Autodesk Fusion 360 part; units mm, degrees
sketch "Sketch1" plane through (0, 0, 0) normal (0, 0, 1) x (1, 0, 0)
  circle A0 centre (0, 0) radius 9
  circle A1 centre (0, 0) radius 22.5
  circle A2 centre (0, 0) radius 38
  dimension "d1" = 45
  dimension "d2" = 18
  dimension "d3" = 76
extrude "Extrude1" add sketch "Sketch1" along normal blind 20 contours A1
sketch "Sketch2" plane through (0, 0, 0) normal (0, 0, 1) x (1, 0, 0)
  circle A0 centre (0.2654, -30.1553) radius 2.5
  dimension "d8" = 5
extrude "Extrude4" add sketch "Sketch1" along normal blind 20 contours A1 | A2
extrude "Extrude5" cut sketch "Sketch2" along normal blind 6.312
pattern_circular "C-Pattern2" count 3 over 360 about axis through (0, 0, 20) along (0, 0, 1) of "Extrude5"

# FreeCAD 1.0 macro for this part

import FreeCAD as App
import Part
import Sketcher
from FreeCAD import Vector
Q = App.Units.Quantity

doc = App.newDocument("Part")
body = doc.addObject("PartDesign::Body", "Body")

# Sketch on XY plane
sketch1 = body.newObject("Sketcher::SketchObject", "Sketch")
sketch1.AttachmentSupport = (doc.getObject("XY_Plane"), [""])
sketch1.MapMode = "FlatFace"
sketch1.addGeometry([
    Part.Circle(Vector(0, 0, 0), Vector(0, 0, 1), 22),
    Part.Circle(Vector(0, 0, 0), Vector(0, 0, 1), 9),
], False)
sketch1.addConstraint([
    Sketcher.Constraint("Coincident", 0, 3, -1, 1),
    Sketcher.Constraint("Coincident", 1, 3, -1, 1),
    Sketcher.Constraint("Diameter", 0, Q("45 mm")),
    Sketcher.Constraint("Diameter", 1, Q("18 mm")),
])
pad1 = body.newObject("PartDesign::Pad", "Pad")
pad1.Profile = sketch1
pad1.Length = 20

# Sketch on XY plane
sketch2 = body.newObject("Sketcher::SketchObject", "Sketch001")
sketch2.AttachmentSupport = (doc.getObject("XY_Plane"), [""])
sketch2.MapMode = "FlatFace"
sketch2.addGeometry([
    Part.Circle(Vector(0, 0, 0), Vector(0, 0, 1), 38),
    Part.Circle(Vector(0, 0, 0), Vector(0, 0, 1), 9),
], False)
sketch2.addConstraint([
    Sketcher.Constraint("Coincident", 0, 3, -1, 1),
    Sketcher.Constraint("Coincident", 1, 3, -1, 1),
    Sketcher.Constraint("Diameter", 0, Q("76 mm")),
    Sketcher.Constraint("Diameter", 1, Q("18 mm")),
])
pad2 = body.newObject("PartDesign::Pad", "Pad001")
pad2.Profile = sketch2
pad2.Length = 20

# Sketch on XY plane
sketch3 = body.newObject("Sketcher::SketchObject", "Sketch002")
sketch3.AttachmentSupport = (doc.getObject("XY_Plane"), [""])
sketch3.MapMode = "FlatFace"
sketch3.addGeometry(Part.Circle(Vector(0.3, -30.2, 0), Vector(0, 0, 1), 2.5), False)
sketch3.addConstraint([
    Sketcher.Constraint("Diameter", 0, Q("5 mm")),
    Sketcher.Constraint("DistanceX", -1, 1, 0, 3, Q("0.2654 mm")),
    Sketcher.Constraint("DistanceY", 0, 3, -1, 1, Q("30.1553 mm")),
])
pocket1 = body.newObject("PartDesign::Pocket", "Pocket")
pocket1.Profile = sketch3
pocket1.Length = 6.312
pocket1.Reversed = True
doc.recompute()

polarpattern = body.newObject("PartDesign::PolarPattern", "PolarPattern")
polarpattern.Originals = [pocket1]
polarpattern.Axis = (doc.getObject("Z_Axis"), [""])
polarpattern.Angle = 360
polarpattern.Occurrences = 3
body.Tip = polarpattern

doc.recompute()
